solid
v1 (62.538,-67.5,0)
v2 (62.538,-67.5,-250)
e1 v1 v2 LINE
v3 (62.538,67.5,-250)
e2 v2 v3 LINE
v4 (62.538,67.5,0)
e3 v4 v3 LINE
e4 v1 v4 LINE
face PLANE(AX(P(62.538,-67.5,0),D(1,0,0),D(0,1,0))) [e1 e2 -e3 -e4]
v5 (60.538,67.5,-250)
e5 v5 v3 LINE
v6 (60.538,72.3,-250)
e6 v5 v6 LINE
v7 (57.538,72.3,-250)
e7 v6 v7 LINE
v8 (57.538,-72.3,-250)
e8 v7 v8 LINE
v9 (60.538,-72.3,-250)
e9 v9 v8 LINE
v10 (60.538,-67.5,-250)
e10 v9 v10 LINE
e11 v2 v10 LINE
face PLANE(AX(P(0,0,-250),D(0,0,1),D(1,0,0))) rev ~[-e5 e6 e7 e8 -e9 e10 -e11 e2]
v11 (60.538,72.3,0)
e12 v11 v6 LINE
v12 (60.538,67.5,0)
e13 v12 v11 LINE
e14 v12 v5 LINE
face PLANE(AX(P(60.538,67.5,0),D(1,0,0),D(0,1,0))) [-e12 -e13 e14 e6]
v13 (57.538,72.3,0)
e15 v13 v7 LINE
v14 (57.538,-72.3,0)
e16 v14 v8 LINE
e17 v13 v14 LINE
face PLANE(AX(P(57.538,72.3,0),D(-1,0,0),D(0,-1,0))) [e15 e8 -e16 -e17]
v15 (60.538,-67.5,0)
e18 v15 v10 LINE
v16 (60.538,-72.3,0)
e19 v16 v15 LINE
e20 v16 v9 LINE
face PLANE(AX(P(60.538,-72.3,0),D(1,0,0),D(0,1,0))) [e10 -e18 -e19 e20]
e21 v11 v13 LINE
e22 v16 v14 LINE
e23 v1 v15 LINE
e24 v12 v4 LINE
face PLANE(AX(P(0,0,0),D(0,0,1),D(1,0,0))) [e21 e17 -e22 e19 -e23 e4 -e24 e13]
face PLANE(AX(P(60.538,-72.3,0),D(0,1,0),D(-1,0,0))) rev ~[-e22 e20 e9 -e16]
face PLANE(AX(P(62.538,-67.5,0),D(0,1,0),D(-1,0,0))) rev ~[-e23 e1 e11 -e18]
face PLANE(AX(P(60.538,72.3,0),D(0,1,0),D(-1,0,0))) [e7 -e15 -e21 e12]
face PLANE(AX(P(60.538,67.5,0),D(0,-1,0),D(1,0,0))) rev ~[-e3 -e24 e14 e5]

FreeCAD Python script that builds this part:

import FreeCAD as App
import Part
import Sketcher
from FreeCAD import Vector
Q = App.Units.Quantity

doc = App.newDocument("Part")
body = doc.addObject("PartDesign::Body", "Body")

sketch1 = body.newObject("Sketcher::SketchObject", "Sketch")
sketch1.AttachmentSupport = (doc.getObject("XY_Plane"), [""])
sketch1.MapMode = "FlatFace"
sketch1.addGeometry(Part.LineSegment(Vector(60.5, -67.5, 0), Vector(62.5, -67.5, 0)), False)
sketch1.addGeometry(Part.LineSegment(Vector(62.5, -67.5, 0), Vector(62.5, 67.5, 0)), False)
sketch1.addGeometry(Part.LineSegment(Vector(62.5, 67.5, 0), Vector(60.5, 67.5, 0)), False)
sketch1.addGeometry(Part.LineSegment(Vector(60.5, 67.5, 0), Vector(60.5, 72.3, 0)), False)
sketch1.addGeometry(Part.LineSegment(Vector(60.5, 72.3, 0), Vector(57.5, 72.3, 0)), False)
sketch1.addGeometry(Part.LineSegment(Vector(57.5, 72.3, 0), Vector(57.5, -72.3, 0)), False)
sketch1.addGeometry(Part.LineSegment(Vector(57.5, -72.3, 0), Vector(60.5, -72.3, 0)), False)
sketch1.addGeometry(Part.LineSegment(Vector(60.5, -72.3, 0), Vector(60.5, -67.5, 0)), False)
sketch1.addConstraint(Sketcher.Constraint("Coincident", 0, 2, 1, 1))
sketch1.addConstraint(Sketcher.Constraint("Coincident", 1, 2, 2, 1))
sketch1.addConstraint(Sketcher.Constraint("Coincident", 2, 2, 3, 1))
sketch1.addConstraint(Sketcher.Constraint("Coincident", 3, 2, 4, 1))
sketch1.addConstraint(Sketcher.Constraint("Coincident", 4, 2, 5, 1))
sketch1.addConstraint(Sketcher.Constraint("Coincident", 5, 2, 6, 1))
sketch1.addConstraint(Sketcher.Constraint("Coincident", 6, 2, 7, 1))
sketch1.addConstraint(Sketcher.Constraint("Coincident", 7, 2, 0, 1))
sketch1.addConstraint(Sketcher.Constraint("Horizontal", 0))
sketch1.addConstraint(Sketcher.Constraint("Vertical", 1))
sketch1.addConstraint(Sketcher.Constraint("Horizontal", 2))
sketch1.addConstraint(Sketcher.Constraint("Vertical", 3))
sketch1.addConstraint(Sketcher.Constraint("Horizontal", 4))
sketch1.addConstraint(Sketcher.Constraint("Vertical", 5))
sketch1.addConstraint(Sketcher.Constraint("Horizontal", 6))
sketch1.addConstraint(Sketcher.Constraint("Vertical", 7))
sketch1.addConstraint(Sketcher.Constraint("Symmetric", 3, 2, 6, 2, -1))
sketch1.addConstraint(Sketcher.Constraint("Equal", 3, 7))
sketch1.addConstraint(Sketcher.Constraint("DistanceX", 0, 1, 0, 2, Q("2 mm")))
sketch1.addConstraint(Sketcher.Constraint("DistanceX", 4, 2, 4, 1, Q("3 mm")))
sketch1.addConstraint(Sketcher.Constraint("DistanceY", 1, 1, 1, 2, Q("135 mm")))
sketch1.addConstraint(Sketcher.Constraint("DistanceY", 3, 1, 3, 2, Q("4.8 mm")))
sketch1.addConstraint(Sketcher.Constraint("DistanceX", -1, 1, 0, 2, Q("62.538 mm")))
pad1 = body.newObject("PartDesign::Pad", "Pad")
pad1.Profile = sketch1
pad1.Length = 250
pad1.Reversed = True

doc.recompute()
